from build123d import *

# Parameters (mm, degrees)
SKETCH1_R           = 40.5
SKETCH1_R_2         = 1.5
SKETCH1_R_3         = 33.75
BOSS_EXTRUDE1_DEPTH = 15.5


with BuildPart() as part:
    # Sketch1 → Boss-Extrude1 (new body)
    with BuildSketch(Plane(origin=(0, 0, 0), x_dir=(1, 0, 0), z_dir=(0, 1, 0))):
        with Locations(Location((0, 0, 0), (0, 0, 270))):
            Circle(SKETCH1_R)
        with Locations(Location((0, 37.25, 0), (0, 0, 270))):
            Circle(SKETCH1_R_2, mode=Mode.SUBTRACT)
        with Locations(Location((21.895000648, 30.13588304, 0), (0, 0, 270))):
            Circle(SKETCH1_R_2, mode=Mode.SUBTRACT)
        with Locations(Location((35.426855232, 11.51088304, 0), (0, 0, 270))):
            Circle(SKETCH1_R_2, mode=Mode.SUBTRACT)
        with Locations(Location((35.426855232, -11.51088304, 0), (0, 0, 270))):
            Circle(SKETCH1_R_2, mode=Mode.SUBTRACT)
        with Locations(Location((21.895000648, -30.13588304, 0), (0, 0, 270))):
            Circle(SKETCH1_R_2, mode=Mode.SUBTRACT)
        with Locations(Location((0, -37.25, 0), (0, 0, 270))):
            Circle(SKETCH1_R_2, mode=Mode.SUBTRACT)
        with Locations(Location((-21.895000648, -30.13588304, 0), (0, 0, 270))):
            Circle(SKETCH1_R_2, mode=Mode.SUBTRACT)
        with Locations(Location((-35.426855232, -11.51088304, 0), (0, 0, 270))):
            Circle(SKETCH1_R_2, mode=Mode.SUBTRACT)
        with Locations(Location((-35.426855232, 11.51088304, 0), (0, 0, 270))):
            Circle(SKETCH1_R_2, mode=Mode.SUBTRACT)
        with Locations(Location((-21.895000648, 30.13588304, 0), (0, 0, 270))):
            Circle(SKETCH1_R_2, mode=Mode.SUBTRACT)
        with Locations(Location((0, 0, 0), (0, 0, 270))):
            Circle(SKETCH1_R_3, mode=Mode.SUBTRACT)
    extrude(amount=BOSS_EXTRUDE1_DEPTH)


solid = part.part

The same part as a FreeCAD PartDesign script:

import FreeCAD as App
import Part
import Sketcher

V = App.Vector

doc = App.newDocument("Part")
body = doc.addObject("PartDesign::Body", "Body")

sketch1 = body.newObject("Sketcher::SketchObject", "Sketch")
sketch1.AttachmentSupport = (doc.getObject("XZ_Plane"), [""])
sketch1.MapMode = "FlatFace"
sketch1.addGeometry([
    Part.Circle(V(0, 0, 0), V(0, 0, 1), 40.5),
    Part.Circle(V(-21.895001, -30.135883, 0), V(0, 0, 1), 1.5),
    Part.Circle(V(-35.426855, -11.510883, 0), V(0, 0, 1), 1.5),
    Part.Circle(V(0, -37.25, 0), V(0, 0, 1), 1.5),
    Part.Circle(V(-35.426855, 11.510883, 0), V(0, 0, 1), 1.5),
    Part.Circle(V(-21.895001, 30.135883, 0), V(0, 0, 1), 1.5),
    Part.Circle(V(21.895001, -30.135883, 0), V(0, 0, 1), 1.5),
    Part.Circle(V(35.426855, -11.510883, 0), V(0, 0, 1), 1.5),
    Part.Circle(V(0, 0, 0), V(0, 0, 1), 33.75),
    Part.Circle(V(0, 37.25, 0), V(0, 0, 1), 1.5),
    Part.Circle(V(35.426855, 11.510883, 0), V(0, 0, 1), 1.5),
    Part.Circle(V(21.895001, 30.135883, 0), V(0, 0, 1), 1.5),
], False)
sketch1.addConstraint([
    Sketcher.Constraint("Coincident", 0, 3, -1, 1),
    Sketcher.Constraint("Coincident", 8, 3, -1, 1),
    Sketcher.Constraint("Equal", 1, 2),
    Sketcher.Constraint("Equal", 2, 3),
    Sketcher.Constraint("Equal", 3, 4),
    Sketcher.Constraint("Equal", 4, 5),
    Sketcher.Constraint("Equal", 5, 6),
    Sketcher.Constraint("Equal", 6, 7),
    Sketcher.Constraint("Equal", 7, 9),
    Sketcher.Constraint("Equal", 9, 10),
    Sketcher.Constraint("Equal", 10, 11),
    Sketcher.Constraint("Symmetric", 5, 3, 6, 3, -1, 1),
    Sketcher.Constraint("Symmetric", 4, 3, 7, 3, -1, 1),
    Sketcher.Constraint("Symmetric", 3, 3, 9, 3, -1, 1),
    Sketcher.Constraint("Symmetric", 2, 3, 10, 3, -1, 1),
    Sketcher.Constraint("Symmetric", 1, 3, 11, 3, -1, 1),
    Sketcher.Constraint("Symmetric", 1, 3, 6, 3, -2),
    Sketcher.Constraint("Symmetric", 2, 3, 7, 3, -2),
    Sketcher.Constraint("PointOnObject", 3, 3, -2),
    Sketcher.Constraint("Diameter", 0, 81.0),
    Sketcher.Constraint("Diameter", 1, 3.0),
    Sketcher.Constraint("Diameter", 8, 67.5),
    Sketcher.Constraint("DistanceY", 3, 3, -1, 1, 37.25),
    Sketcher.Constraint("DistanceX", 1, 3, 6, 3, 43.790001),
    Sketcher.Constraint("DistanceY", 1, 3, 2, 3, 18.625),
    Sketcher.Constraint("DistanceY", 1, 3, -1, 1, 30.135883),
    Sketcher.Constraint("DistanceX", 2, 3, -1, 1, 35.426855),
])
pad1 = body.newObject("PartDesign::Pad", "Pad")
pad1.Profile = sketch1
pad1.Length = 15.5
pad1.Reversed = True

doc.recompute()
